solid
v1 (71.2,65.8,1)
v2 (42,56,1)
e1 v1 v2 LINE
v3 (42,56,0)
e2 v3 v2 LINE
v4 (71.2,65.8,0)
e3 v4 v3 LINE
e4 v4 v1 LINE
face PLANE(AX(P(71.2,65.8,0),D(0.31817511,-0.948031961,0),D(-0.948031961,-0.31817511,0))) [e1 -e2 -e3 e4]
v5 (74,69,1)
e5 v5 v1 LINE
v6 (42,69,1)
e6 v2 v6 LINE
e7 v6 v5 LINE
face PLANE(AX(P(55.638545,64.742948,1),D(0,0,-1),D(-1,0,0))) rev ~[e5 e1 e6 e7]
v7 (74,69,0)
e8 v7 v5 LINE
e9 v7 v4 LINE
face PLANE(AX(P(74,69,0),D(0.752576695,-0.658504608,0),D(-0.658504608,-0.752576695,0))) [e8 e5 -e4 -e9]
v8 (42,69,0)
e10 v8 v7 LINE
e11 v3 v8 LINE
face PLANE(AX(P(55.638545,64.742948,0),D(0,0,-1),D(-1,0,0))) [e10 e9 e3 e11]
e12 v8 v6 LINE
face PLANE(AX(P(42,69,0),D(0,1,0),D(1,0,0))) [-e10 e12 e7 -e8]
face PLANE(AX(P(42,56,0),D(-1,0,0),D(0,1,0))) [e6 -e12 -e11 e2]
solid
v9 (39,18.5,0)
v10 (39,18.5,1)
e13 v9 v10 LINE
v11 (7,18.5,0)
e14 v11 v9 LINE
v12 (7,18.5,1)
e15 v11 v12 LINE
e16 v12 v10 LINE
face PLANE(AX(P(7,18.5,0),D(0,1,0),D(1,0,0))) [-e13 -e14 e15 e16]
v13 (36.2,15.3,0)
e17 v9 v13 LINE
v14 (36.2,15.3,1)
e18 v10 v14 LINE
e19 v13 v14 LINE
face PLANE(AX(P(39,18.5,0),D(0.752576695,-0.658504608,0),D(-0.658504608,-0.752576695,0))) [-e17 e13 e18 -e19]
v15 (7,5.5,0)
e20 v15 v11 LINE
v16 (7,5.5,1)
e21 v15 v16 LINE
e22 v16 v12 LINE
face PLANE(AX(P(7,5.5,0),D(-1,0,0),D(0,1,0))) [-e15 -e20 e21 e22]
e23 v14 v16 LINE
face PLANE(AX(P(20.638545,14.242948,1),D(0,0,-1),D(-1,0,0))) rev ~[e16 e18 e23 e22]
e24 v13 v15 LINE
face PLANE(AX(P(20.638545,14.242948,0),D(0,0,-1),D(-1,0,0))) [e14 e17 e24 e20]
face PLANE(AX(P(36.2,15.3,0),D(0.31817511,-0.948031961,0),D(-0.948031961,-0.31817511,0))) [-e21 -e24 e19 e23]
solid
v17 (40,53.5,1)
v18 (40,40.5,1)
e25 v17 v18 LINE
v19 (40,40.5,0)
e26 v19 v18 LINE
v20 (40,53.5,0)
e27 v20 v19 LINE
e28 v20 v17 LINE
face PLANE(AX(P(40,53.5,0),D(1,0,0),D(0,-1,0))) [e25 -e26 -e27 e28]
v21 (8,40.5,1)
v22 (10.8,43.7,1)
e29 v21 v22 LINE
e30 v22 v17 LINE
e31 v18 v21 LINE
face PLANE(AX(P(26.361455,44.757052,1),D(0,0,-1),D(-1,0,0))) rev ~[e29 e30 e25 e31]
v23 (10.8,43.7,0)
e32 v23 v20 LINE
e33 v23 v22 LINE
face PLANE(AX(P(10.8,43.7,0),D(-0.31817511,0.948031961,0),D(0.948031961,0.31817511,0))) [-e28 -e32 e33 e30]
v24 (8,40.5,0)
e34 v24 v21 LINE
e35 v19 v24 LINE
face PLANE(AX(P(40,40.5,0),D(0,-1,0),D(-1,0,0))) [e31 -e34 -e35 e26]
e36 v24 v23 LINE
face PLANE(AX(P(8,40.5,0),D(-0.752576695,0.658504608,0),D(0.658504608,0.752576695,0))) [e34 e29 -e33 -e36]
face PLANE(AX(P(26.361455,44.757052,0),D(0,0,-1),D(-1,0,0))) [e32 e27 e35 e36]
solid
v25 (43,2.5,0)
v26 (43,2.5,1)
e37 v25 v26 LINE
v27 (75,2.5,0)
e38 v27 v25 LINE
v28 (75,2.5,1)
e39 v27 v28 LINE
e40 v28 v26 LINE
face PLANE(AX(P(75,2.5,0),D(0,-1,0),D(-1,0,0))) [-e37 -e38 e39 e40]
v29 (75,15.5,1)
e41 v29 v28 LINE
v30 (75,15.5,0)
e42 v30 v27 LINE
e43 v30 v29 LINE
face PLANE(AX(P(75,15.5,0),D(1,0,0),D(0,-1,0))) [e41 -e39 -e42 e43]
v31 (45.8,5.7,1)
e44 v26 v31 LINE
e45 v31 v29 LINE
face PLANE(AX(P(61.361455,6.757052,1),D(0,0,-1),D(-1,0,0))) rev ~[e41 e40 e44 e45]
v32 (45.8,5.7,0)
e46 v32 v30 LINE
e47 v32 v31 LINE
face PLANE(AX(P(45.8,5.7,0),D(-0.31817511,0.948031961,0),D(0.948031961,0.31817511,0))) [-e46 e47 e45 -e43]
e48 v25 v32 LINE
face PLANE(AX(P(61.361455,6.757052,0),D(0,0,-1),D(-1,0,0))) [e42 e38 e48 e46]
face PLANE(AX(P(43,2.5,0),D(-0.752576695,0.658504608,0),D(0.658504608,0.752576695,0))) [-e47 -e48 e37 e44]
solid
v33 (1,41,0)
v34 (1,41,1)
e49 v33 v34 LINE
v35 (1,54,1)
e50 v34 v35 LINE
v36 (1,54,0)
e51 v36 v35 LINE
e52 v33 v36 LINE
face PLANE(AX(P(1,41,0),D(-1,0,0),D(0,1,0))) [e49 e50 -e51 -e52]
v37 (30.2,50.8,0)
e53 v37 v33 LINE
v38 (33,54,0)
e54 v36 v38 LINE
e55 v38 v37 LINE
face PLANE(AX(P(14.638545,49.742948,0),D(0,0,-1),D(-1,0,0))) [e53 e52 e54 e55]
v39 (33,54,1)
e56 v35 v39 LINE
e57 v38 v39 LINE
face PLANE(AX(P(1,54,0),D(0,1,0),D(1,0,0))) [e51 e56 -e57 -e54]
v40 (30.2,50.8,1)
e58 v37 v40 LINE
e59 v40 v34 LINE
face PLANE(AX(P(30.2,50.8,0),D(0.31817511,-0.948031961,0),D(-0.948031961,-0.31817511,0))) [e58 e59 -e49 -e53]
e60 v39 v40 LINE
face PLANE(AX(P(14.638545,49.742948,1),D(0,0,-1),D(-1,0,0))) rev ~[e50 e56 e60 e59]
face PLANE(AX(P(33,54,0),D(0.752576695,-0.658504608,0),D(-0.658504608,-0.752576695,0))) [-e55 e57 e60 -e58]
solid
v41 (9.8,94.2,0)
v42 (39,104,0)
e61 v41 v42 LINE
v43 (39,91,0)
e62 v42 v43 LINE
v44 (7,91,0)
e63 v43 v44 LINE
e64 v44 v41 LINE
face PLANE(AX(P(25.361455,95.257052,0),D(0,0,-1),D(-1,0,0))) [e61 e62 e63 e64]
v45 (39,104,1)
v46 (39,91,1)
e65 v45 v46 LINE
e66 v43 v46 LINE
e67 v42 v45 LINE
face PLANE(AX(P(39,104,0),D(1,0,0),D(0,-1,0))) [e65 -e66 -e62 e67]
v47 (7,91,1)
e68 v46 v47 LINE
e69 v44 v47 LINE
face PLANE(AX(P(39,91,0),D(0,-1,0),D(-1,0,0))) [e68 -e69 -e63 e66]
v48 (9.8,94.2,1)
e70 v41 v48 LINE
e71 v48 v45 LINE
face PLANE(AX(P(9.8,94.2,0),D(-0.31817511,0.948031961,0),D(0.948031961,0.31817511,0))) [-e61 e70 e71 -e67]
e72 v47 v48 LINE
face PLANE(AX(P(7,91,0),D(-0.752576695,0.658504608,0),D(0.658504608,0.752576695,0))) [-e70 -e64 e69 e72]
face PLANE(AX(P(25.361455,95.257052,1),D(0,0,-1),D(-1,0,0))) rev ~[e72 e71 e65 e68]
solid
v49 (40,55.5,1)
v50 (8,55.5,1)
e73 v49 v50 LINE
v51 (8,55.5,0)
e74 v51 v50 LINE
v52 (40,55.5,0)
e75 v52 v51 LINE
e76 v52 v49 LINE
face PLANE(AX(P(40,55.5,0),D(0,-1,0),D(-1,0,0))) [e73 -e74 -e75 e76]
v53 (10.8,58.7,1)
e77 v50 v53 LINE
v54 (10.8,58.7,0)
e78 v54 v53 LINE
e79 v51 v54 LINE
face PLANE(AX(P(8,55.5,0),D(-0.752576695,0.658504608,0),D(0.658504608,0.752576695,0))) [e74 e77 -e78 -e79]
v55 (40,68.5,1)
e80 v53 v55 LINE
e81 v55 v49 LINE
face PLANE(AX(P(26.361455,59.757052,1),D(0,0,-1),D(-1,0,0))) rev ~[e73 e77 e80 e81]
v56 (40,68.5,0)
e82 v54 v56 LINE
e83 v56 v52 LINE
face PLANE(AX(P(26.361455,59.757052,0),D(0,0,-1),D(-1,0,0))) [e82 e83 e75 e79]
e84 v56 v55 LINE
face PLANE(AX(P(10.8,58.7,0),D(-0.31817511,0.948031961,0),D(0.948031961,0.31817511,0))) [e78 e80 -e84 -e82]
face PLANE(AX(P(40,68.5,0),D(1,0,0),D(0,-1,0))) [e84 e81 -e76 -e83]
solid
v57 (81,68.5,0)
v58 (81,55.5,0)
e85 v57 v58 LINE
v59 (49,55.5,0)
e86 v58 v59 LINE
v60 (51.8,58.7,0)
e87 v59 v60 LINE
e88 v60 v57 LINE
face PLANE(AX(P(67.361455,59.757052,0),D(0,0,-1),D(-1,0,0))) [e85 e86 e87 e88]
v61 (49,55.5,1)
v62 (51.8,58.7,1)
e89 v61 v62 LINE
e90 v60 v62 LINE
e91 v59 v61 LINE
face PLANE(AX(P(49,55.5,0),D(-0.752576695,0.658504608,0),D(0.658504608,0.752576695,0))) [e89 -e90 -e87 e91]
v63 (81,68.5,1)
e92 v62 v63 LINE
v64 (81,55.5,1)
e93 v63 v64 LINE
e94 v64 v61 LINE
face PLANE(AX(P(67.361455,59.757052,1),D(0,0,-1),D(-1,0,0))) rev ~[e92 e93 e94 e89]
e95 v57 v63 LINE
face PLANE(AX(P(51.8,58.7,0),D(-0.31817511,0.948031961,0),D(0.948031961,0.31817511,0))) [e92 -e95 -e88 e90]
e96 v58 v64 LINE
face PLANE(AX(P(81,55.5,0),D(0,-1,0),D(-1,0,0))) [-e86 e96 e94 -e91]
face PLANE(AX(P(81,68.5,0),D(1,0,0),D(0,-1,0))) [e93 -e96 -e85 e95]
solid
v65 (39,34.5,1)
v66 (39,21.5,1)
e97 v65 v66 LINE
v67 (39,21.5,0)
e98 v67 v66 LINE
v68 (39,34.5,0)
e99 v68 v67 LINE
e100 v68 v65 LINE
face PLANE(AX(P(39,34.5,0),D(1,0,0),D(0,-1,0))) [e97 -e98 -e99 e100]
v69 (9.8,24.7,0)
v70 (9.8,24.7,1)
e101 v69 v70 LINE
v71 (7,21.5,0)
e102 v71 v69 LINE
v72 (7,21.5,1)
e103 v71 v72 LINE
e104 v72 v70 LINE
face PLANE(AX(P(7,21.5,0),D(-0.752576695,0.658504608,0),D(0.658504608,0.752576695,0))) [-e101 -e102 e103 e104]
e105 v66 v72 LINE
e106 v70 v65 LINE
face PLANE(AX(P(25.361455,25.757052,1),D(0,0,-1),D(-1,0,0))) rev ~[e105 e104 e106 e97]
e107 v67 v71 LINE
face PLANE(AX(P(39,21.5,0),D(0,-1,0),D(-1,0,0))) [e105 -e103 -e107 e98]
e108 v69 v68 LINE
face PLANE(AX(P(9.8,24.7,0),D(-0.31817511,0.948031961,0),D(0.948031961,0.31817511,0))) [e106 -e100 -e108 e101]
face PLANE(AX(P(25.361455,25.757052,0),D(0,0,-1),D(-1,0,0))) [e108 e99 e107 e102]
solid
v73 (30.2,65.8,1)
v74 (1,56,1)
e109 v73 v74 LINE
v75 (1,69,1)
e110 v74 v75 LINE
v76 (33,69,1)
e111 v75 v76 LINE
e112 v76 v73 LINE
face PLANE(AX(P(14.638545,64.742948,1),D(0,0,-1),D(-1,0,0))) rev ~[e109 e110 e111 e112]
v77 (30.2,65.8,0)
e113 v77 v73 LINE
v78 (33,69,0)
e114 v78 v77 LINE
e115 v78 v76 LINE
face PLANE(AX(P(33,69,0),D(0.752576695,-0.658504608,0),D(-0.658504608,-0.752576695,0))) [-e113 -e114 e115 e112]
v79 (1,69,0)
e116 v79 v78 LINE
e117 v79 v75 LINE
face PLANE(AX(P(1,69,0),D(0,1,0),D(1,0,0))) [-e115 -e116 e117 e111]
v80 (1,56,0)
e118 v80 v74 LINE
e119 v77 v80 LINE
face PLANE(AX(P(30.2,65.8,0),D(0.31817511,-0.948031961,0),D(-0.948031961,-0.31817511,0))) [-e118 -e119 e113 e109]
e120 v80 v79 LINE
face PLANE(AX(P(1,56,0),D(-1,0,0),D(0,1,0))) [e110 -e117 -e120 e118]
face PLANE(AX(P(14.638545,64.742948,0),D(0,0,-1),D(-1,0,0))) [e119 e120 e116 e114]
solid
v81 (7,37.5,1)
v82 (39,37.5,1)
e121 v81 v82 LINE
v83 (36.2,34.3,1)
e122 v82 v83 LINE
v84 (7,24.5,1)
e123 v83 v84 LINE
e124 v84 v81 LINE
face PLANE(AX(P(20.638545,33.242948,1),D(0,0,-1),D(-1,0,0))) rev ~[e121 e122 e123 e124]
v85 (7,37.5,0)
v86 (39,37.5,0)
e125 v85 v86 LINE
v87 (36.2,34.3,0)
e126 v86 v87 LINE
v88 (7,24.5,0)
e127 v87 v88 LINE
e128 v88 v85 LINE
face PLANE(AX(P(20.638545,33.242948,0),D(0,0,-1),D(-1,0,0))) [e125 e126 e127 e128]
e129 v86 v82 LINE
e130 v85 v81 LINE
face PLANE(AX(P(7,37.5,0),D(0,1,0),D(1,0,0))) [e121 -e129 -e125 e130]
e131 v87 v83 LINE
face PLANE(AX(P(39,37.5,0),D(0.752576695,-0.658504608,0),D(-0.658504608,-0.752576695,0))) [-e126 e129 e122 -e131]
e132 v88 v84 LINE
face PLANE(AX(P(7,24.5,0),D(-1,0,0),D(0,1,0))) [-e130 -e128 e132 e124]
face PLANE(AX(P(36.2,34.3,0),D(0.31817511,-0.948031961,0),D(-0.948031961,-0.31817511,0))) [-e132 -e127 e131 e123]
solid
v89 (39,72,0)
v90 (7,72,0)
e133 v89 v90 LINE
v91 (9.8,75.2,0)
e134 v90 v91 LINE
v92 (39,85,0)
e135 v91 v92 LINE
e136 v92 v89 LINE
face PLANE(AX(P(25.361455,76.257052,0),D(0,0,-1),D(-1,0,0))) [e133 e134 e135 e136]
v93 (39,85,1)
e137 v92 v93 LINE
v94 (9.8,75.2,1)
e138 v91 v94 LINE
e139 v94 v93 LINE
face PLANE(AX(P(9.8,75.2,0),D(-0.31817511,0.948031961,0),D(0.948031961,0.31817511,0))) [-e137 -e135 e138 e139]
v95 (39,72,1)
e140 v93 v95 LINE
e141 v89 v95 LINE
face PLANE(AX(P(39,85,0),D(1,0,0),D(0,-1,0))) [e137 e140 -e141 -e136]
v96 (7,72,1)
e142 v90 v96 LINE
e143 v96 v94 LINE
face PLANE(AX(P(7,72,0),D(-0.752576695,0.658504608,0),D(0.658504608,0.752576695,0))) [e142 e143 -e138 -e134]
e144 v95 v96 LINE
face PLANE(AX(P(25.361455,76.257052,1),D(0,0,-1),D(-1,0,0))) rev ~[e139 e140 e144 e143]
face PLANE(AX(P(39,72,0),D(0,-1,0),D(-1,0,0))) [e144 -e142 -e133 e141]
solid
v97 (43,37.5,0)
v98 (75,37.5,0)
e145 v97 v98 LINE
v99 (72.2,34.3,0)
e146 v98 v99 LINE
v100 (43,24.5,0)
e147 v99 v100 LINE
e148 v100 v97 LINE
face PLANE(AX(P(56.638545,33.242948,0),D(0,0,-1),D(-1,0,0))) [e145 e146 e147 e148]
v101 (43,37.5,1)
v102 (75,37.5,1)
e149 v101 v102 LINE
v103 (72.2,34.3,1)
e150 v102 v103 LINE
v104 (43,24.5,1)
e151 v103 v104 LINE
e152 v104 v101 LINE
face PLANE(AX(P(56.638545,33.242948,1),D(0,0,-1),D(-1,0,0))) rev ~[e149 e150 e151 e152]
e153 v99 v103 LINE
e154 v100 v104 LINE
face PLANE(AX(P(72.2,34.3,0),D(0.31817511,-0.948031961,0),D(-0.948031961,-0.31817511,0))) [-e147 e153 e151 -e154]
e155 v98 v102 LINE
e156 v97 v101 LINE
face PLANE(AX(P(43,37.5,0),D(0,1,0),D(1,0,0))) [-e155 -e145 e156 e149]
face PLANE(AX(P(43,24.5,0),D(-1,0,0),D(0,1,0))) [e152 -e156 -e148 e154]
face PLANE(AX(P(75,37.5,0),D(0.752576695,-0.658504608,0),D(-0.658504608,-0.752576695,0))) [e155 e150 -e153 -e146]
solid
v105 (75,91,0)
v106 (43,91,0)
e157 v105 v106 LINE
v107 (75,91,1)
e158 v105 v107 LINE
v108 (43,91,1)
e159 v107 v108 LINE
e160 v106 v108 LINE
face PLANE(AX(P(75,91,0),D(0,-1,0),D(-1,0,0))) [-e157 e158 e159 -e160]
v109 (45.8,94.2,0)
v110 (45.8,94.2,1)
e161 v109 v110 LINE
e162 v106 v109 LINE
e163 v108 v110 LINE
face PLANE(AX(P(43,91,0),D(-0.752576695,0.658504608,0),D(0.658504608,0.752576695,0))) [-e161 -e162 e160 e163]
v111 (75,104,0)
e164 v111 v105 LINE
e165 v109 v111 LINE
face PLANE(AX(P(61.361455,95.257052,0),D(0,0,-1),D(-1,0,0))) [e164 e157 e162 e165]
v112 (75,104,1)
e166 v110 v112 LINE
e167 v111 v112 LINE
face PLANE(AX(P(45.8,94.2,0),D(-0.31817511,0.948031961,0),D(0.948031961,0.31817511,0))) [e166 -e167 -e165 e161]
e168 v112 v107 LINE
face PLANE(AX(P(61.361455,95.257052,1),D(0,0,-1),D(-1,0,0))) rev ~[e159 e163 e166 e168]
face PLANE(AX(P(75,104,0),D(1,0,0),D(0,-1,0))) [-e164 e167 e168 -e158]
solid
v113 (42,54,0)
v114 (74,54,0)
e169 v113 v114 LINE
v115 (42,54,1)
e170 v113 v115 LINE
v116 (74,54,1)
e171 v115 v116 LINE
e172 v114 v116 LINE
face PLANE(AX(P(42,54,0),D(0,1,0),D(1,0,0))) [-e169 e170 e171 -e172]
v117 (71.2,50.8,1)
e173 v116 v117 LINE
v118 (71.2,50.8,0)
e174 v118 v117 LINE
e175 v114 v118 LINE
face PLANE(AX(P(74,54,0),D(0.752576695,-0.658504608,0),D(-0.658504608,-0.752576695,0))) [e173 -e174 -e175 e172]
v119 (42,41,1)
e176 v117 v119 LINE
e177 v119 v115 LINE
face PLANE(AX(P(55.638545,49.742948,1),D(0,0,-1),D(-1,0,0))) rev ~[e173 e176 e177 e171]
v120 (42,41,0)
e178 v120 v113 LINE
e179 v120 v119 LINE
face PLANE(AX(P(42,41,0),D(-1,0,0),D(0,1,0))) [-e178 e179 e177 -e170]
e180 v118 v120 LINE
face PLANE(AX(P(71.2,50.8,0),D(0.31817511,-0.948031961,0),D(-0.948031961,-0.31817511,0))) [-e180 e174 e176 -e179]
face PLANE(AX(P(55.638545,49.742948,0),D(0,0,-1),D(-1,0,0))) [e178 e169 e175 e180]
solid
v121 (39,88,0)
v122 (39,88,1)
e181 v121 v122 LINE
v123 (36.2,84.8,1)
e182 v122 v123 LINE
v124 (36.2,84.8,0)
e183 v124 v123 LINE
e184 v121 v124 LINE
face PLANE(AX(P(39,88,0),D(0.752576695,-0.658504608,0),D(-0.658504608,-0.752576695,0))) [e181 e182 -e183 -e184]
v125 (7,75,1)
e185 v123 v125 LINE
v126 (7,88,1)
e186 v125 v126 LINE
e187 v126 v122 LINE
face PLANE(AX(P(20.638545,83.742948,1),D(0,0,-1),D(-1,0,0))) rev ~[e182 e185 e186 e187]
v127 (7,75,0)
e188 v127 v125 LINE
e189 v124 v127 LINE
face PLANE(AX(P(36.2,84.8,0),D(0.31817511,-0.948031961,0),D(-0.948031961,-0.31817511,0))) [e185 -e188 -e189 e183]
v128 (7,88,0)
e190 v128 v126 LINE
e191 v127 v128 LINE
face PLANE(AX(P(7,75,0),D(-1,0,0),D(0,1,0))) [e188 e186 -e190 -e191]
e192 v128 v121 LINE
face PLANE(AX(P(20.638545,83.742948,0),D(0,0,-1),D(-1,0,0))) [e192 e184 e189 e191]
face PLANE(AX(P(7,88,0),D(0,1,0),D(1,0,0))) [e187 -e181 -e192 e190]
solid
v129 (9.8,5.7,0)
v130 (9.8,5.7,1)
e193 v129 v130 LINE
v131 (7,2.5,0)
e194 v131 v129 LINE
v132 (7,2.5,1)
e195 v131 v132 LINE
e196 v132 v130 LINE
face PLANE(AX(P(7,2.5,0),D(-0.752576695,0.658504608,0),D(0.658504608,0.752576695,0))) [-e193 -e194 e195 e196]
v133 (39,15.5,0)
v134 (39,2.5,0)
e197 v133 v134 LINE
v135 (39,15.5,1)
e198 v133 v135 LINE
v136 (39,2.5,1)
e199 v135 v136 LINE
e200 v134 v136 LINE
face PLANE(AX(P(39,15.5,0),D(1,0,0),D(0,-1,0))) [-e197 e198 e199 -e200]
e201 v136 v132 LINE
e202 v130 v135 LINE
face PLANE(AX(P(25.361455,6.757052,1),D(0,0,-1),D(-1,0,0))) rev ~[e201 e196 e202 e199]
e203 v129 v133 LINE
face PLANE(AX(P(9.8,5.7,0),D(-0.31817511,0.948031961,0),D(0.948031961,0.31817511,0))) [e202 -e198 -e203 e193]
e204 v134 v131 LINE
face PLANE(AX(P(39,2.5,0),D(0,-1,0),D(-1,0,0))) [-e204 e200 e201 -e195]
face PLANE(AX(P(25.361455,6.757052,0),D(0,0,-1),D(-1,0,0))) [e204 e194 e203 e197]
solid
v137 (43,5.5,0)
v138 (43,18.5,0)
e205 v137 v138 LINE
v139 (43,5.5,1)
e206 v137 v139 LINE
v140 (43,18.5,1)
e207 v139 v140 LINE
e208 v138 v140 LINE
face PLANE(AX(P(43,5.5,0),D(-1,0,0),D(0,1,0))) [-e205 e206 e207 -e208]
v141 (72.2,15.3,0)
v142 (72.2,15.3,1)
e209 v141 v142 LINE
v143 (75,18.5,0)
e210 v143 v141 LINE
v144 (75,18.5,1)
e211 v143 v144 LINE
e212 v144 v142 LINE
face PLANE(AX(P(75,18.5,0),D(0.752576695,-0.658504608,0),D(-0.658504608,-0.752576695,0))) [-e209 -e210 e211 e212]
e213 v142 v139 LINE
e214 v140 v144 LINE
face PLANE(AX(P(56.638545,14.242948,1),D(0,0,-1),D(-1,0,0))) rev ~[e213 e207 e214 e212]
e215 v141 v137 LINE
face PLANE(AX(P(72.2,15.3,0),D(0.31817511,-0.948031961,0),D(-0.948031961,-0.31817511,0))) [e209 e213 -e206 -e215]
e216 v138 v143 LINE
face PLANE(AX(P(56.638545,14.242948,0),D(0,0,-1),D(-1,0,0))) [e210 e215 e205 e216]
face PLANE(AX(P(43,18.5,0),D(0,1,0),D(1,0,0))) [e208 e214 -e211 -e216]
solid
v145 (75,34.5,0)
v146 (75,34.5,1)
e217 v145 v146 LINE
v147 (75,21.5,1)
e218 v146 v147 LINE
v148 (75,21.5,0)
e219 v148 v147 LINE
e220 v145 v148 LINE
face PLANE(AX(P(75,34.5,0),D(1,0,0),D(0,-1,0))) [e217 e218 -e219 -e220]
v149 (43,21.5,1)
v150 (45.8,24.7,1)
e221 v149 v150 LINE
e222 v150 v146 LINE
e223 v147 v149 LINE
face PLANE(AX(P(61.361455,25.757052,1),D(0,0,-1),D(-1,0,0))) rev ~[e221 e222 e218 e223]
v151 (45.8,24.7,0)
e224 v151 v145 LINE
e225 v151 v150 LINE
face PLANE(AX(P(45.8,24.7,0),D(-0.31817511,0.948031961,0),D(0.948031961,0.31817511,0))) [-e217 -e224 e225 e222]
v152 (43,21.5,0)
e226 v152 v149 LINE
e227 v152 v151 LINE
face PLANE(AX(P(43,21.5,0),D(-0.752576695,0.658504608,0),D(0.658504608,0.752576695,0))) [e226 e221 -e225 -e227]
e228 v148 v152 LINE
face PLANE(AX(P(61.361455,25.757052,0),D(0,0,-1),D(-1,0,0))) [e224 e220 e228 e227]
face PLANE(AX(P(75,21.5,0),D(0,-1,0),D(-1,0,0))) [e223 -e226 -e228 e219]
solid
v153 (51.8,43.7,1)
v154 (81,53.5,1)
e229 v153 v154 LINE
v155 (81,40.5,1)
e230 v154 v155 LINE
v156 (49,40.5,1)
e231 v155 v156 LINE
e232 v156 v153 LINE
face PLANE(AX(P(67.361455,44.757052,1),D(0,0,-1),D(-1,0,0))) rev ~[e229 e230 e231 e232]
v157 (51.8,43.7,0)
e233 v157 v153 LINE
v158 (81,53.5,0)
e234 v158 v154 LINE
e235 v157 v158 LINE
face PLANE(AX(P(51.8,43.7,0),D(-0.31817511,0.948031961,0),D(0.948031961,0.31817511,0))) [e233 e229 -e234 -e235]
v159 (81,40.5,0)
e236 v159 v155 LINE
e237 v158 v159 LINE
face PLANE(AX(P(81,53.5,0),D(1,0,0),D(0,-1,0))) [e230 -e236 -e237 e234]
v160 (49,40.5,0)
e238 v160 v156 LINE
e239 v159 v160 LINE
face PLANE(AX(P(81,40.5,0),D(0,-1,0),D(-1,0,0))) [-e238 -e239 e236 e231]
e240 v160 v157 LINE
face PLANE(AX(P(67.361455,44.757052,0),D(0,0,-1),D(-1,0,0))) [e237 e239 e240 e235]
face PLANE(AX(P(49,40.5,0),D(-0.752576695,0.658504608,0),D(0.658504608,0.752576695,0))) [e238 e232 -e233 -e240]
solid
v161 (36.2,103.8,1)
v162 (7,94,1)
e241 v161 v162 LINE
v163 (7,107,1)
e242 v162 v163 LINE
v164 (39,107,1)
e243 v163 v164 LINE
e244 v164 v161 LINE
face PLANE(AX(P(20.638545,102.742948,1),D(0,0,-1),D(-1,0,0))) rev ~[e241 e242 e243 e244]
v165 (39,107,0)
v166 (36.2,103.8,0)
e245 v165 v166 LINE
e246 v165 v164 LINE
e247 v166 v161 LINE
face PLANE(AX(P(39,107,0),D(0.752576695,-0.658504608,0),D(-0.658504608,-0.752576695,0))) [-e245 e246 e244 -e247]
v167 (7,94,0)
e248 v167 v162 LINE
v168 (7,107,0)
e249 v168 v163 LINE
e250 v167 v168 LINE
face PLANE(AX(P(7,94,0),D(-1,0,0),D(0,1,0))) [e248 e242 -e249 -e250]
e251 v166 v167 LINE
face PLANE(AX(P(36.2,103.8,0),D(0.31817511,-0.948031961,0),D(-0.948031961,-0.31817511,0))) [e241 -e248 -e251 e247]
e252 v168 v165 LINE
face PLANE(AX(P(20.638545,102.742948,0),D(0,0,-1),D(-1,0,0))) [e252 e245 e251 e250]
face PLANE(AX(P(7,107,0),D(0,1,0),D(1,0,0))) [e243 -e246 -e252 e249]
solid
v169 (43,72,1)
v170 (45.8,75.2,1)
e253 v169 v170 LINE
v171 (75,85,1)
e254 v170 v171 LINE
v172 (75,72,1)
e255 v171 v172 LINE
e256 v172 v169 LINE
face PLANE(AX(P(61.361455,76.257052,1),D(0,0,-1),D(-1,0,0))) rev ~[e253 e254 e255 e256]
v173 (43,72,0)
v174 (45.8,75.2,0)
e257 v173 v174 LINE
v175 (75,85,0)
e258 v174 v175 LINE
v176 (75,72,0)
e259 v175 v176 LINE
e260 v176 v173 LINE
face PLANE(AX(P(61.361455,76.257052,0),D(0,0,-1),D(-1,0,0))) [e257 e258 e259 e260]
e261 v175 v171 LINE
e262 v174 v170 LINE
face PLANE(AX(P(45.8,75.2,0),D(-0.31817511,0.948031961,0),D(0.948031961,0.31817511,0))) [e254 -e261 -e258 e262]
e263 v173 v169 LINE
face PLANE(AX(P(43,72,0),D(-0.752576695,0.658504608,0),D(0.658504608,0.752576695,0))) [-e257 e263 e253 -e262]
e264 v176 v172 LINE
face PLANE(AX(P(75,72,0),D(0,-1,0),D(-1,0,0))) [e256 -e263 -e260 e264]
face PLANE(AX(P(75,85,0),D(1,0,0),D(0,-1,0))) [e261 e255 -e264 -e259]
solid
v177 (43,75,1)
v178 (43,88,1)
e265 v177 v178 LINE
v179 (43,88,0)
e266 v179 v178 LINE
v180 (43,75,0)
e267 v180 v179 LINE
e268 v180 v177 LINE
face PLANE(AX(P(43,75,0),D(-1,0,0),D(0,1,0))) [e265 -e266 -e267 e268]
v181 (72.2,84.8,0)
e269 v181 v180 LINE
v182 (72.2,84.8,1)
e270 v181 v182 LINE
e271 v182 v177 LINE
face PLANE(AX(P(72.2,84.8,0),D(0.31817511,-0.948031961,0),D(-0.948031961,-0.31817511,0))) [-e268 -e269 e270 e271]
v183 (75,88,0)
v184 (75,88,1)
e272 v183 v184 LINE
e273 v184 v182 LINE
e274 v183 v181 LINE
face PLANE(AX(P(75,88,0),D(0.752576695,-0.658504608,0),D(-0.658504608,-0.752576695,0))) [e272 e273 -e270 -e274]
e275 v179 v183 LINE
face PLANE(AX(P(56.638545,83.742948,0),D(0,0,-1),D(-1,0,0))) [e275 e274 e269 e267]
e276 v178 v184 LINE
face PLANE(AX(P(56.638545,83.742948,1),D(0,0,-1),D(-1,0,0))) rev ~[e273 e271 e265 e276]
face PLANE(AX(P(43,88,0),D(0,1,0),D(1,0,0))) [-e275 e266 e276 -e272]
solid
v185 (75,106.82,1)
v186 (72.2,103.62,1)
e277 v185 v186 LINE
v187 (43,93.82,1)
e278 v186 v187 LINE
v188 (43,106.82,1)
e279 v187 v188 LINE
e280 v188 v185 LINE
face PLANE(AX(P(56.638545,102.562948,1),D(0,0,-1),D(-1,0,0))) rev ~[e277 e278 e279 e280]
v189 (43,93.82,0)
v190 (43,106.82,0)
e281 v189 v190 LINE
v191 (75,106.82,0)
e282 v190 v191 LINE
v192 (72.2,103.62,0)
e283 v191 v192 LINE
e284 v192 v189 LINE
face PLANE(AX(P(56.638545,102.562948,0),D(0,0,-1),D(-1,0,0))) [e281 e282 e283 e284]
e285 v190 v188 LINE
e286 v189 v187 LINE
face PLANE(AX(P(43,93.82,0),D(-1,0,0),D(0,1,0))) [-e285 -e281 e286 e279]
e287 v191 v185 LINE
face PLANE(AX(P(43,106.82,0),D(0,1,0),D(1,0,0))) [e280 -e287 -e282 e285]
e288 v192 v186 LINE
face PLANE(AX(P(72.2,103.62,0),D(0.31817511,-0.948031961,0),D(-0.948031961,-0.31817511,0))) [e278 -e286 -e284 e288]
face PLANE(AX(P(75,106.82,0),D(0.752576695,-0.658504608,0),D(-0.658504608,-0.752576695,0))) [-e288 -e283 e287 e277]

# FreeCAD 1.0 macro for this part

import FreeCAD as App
import Part
import Sketcher


def add_polygon(sketch, points):
    """Adds a closed chain of lines whose ends are joined by coincident constraints."""
    first, n = sketch.GeometryCount, len(points)
    for a, b in zip(points, points[1:] + points[:1]):
        sketch.addGeometry(Part.LineSegment(App.Vector(*a, 0), App.Vector(*b, 0)), False)
    for i in range(n):
        sketch.addConstraint(Sketcher.Constraint("Coincident", first + i, 2, first + (i + 1) % n, 1))

doc = App.newDocument("Part")
params = doc.addObject("Spreadsheet::Sheet", "Params")
for row, (alias, value) in enumerate([
    ("sketch1_width", "32 mm"),
    ("sketch1_height", "13 mm"),
    ("pad1_length", "1 mm"),
    ("sketch2_width", "32 mm"),
    ("sketch2_height", "13 mm"),
    ("pad2_length", "1 mm"),
    ("sketch3_width", "32 mm"),
    ("sketch3_height", "13 mm"),
    ("pad3_length", "1 mm"),
    ("sketch4_width", "32 mm"),
    ("sketch4_height", "13 mm"),
    ("pad4_length", "1 mm"),
    ("sketch5_width", "32 mm"),
    ("sketch5_height", "13 mm"),
    ("pad5_length", "1 mm"),
    ("sketch6_width", "32 mm"),
    ("sketch6_height", "13 mm"),
    ("pad6_length", "1 mm"),
    ("sketch7_width", "32 mm"),
    ("sketch7_height", "13 mm"),
    ("pad7_length", "1 mm"),
    ("sketch8_width", "32 mm"),
    ("sketch8_height", "13 mm"),
    ("pad8_length", "1 mm"),
    ("sketch9_width", "32 mm"),
    ("sketch9_height", "13 mm"),
    ("pad9_length", "1 mm"),
    ("sketch10_width", "32 mm"),
    ("sketch10_height", "13 mm"),
    ("pad10_length", "1 mm"),
    ("sketch11_width", "32 mm"),
    ("sketch11_height", "13 mm"),
    ("pad11_length", "1 mm"),
    ("sketch12_width", "32 mm"),
    ("sketch12_height", "13 mm"),
    ("pad12_length", "1 mm"),
    ("sketch13_width", "32 mm"),
    ("sketch13_height", "13 mm"),
    ("pad13_length", "1 mm"),
    ("sketch14_width", "32 mm"),
    ("sketch14_height", "13 mm"),
    ("pad14_length", "1 mm"),
    ("sketch15_width", "32 mm"),
    ("sketch15_height", "13 mm"),
    ("pad15_length", "1 mm"),
    ("sketch16_width", "32 mm"),
    ("sketch16_height", "13 mm"),
    ("pad16_length", "1 mm"),
    ("sketch17_width", "32 mm"),
    ("sketch17_height", "13 mm"),
    ("pad17_length", "1 mm"),
    ("sketch18_width", "32 mm"),
    ("sketch18_height", "13 mm"),
    ("pad18_length", "1 mm"),
    ("sketch19_width", "32 mm"),
    ("sketch19_height", "13 mm"),
    ("pad19_length", "1 mm"),
    ("sketch20_width", "32 mm"),
    ("sketch20_height", "13 mm"),
    ("pad20_length", "1 mm"),
    ("sketch21_width", "32 mm"),
    ("sketch21_height", "13 mm"),
    ("pad21_length", "1 mm"),
    ("sketch22_width", "32 mm"),
    ("sketch22_height", "13 mm"),
    ("pad22_length", "1 mm"),
    ("sketch23_width", "32 mm"),
    ("sketch23_height", "13 mm"),
    ("pad23_length", "1 mm"),
    ("sketch24_width", "32 mm"),
    ("sketch24_height", "13 mm"),
    ("pad24_length", "1 mm"),
], start=1):
    params.set(f"A{row}", alias)
    params.set(f"B{row}", "=" + value)
    params.setAlias(f"B{row}", alias)

body = doc.addObject("PartDesign::Body", "Body")

# Sketch on XY plane
sketch1 = body.newObject("Sketcher::SketchObject", "Sketch")
sketch1.AttachmentSupport = (doc.getObject("XY_Plane"), [""])
sketch1.MapMode = "FlatFace"
add_polygon(sketch1, [(7, 2.5), (39, 2.5), (39, 15.5), (9.8, 5.7)])  # lines 0-3
sketch1.addConstraint([
    Sketcher.Constraint("Horizontal", 0),
    Sketcher.Constraint("Vertical", 1),
    Sketcher.Constraint("DistanceX", 0, 1, 0, 2, 32.0),
    Sketcher.Constraint("DistanceY", 1, 1, 1, 2, 13.0),
    Sketcher.Constraint("DistanceX", -1, 1, 0, 2, 39.0),
    Sketcher.Constraint("DistanceY", -1, 1, 0, 2, 2.5),
    Sketcher.Constraint("DistanceX", -1, 1, 2, 2, 9.8),
    Sketcher.Constraint("DistanceY", -1, 1, 2, 2, 5.7),
])
sketch1.setExpression("Constraints[6]", "Params.sketch1_width")
sketch1.setExpression("Constraints[7]", "Params.sketch1_height")
pad1 = body.newObject("PartDesign::Pad", "Pad")
pad1.Profile = sketch1
pad1.setExpression("Length", "Params.pad1_length")
body2 = doc.addObject("PartDesign::Body", "Body001")

# Sketch on XY plane
sketch2 = body2.newObject("Sketcher::SketchObject", "Sketch001")
sketch2.AttachmentSupport = (doc.getObject("XY_Plane001"), [""])
sketch2.MapMode = "FlatFace"
add_polygon(sketch2, [(39, 18.5), (7, 18.5), (7, 5.5), (36.2, 15.3)])  # lines 0-3
sketch2.addConstraint([
    Sketcher.Constraint("Horizontal", 0),
    Sketcher.Constraint("Vertical", 1),
    Sketcher.Constraint("DistanceX", 0, 2, 0, 1, 32.0),
    Sketcher.Constraint("DistanceY", 1, 2, 1, 1, 13.0),
    Sketcher.Constraint("DistanceX", -1, 1, 0, 2, 7.0),
    Sketcher.Constraint("DistanceY", -1, 1, 0, 2, 18.5),
    Sketcher.Constraint("DistanceX", -1, 1, 2, 2, 36.2),
    Sketcher.Constraint("DistanceY", -1, 1, 2, 2, 15.3),
])
sketch2.setExpression("Constraints[6]", "Params.sketch2_width")
sketch2.setExpression("Constraints[7]", "Params.sketch2_height")
pad2 = body2.newObject("PartDesign::Pad", "Pad001")
pad2.Profile = sketch2
pad2.setExpression("Length", "Params.pad2_length")
body3 = doc.addObject("PartDesign::Body", "Body002")

# Sketch on XY plane
sketch3 = body3.newObject("Sketcher::SketchObject", "Sketch002")
sketch3.AttachmentSupport = (doc.getObject("XY_Plane002"), [""])
sketch3.MapMode = "FlatFace"
add_polygon(sketch3, [(75, 18.5), (43, 18.5), (43, 5.5), (72.2, 15.3)])  # lines 0-3
sketch3.addConstraint([
    Sketcher.Constraint("Horizontal", 0),
    Sketcher.Constraint("Vertical", 1),
    Sketcher.Constraint("DistanceX", 0, 2, 0, 1, 32.0),
    Sketcher.Constraint("DistanceY", 1, 2, 1, 1, 13.0),
    Sketcher.Constraint("DistanceX", -1, 1, 0, 2, 43.0),
    Sketcher.Constraint("DistanceY", -1, 1, 0, 2, 18.5),
    Sketcher.Constraint("DistanceX", -1, 1, 2, 2, 72.2),
    Sketcher.Constraint("DistanceY", -1, 1, 2, 2, 15.3),
])
sketch3.setExpression("Constraints[6]", "Params.sketch3_width")
sketch3.setExpression("Constraints[7]", "Params.sketch3_height")
pad3 = body3.newObject("PartDesign::Pad", "Pad002")
pad3.Profile = sketch3
pad3.setExpression("Length", "Params.pad3_length")
body4 = doc.addObject("PartDesign::Body", "Body003")

# Sketch on XY plane
sketch4 = body4.newObject("Sketcher::SketchObject", "Sketch003")
sketch4.AttachmentSupport = (doc.getObject("XY_Plane003"), [""])
sketch4.MapMode = "FlatFace"
add_polygon(sketch4, [(43, 2.5), (75, 2.5), (75, 15.5), (45.8, 5.7)])  # lines 0-3
sketch4.addConstraint([
    Sketcher.Constraint("Horizontal", 0),
    Sketcher.Constraint("Vertical", 1),
    Sketcher.Constraint("DistanceX", 0, 1, 0, 2, 32.0),
    Sketcher.Constraint("DistanceY", 1, 1, 1, 2, 13.0),
    Sketcher.Constraint("DistanceX", -1, 1, 0, 2, 75.0),
    Sketcher.Constraint("DistanceY", -1, 1, 0, 2, 2.5),
    Sketcher.Constraint("DistanceX", -1, 1, 2, 2, 45.8),
    Sketcher.Constraint("DistanceY", -1, 1, 2, 2, 5.7),
])
sketch4.setExpression("Constraints[6]", "Params.sketch4_width")
sketch4.setExpression("Constraints[7]", "Params.sketch4_height")
pad4 = body4.newObject("PartDesign::Pad", "Pad003")
pad4.Profile = sketch4
pad4.setExpression("Length", "Params.pad4_length")
body5 = doc.addObject("PartDesign::Body", "Body004")

# Sketch on XY plane
sketch5 = body5.newObject("Sketcher::SketchObject", "Sketch004")
sketch5.AttachmentSupport = (doc.getObject("XY_Plane004"), [""])
sketch5.MapMode = "FlatFace"
add_polygon(sketch5, [(7, 21.5), (39, 21.5), (39, 34.5), (9.8, 24.7)])  # lines 0-3
sketch5.addConstraint([
    Sketcher.Constraint("Horizontal", 0),
    Sketcher.Constraint("Vertical", 1),
    Sketcher.Constraint("DistanceX", 0, 1, 0, 2, 32.0),
    Sketcher.Constraint("DistanceY", 1, 1, 1, 2, 13.0),
    Sketcher.Constraint("DistanceX", -1, 1, 0, 2, 39.0),
    Sketcher.Constraint("DistanceY", -1, 1, 0, 2, 21.5),
    Sketcher.Constraint("DistanceX", -1, 1, 2, 2, 9.8),
    Sketcher.Constraint("DistanceY", -1, 1, 2, 2, 24.7),
])
sketch5.setExpression("Constraints[6]", "Params.sketch5_width")
sketch5.setExpression("Constraints[7]", "Params.sketch5_height")
pad5 = body5.newObject("PartDesign::Pad", "Pad004")
pad5.Profile = sketch5
pad5.setExpression("Length", "Params.pad5_length")
body6 = doc.addObject("PartDesign::Body", "Body005")

# Sketch on XY plane
sketch6 = body6.newObject("Sketcher::SketchObject", "Sketch005")
sketch6.AttachmentSupport = (doc.getObject("XY_Plane005"), [""])
sketch6.MapMode = "FlatFace"
add_polygon(sketch6, [(39, 37.5), (7, 37.5), (7, 24.5), (36.2, 34.3)])  # lines 0-3
sketch6.addConstraint([
    Sketcher.Constraint("Horizontal", 0),
    Sketcher.Constraint("Vertical", 1),
    Sketcher.Constraint("DistanceX", 0, 2, 0, 1, 32.0),
    Sketcher.Constraint("DistanceY", 1, 2, 1, 1, 13.0),
    Sketcher.Constraint("DistanceX", -1, 1, 0, 2, 7.0),
    Sketcher.Constraint("DistanceY", -1, 1, 0, 2, 37.5),
    Sketcher.Constraint("DistanceX", -1, 1, 2, 2, 36.2),
    Sketcher.Constraint("DistanceY", -1, 1, 2, 2, 34.3),
])
sketch6.setExpression("Constraints[6]", "Params.sketch6_width")
sketch6.setExpression("Constraints[7]", "Params.sketch6_height")
pad6 = body6.newObject("PartDesign::Pad", "Pad005")
pad6.Profile = sketch6
pad6.setExpression("Length", "Params.pad6_length")
body7 = doc.addObject("PartDesign::Body", "Body006")

# Sketch on XY plane
sketch7 = body7.newObject("Sketcher::SketchObject", "Sketch006")
sketch7.AttachmentSupport = (doc.getObject("XY_Plane006"), [""])
sketch7.MapMode = "FlatFace"
add_polygon(sketch7, [(75, 37.5), (43, 37.5), (43, 24.5), (72.2, 34.3)])  # lines 0-3
sketch7.addConstraint([
    Sketcher.Constraint("Horizontal", 0),
    Sketcher.Constraint("Vertical", 1),
    Sketcher.Constraint("DistanceX", 0, 2, 0, 1, 32.0),
    Sketcher.Constraint("DistanceY", 1, 2, 1, 1, 13.0),
    Sketcher.Constraint("DistanceX", -1, 1, 0, 2, 43.0),
    Sketcher.Constraint("DistanceY", -1, 1, 0, 2, 37.5),
    Sketcher.Constraint("DistanceX", -1, 1, 2, 2, 72.2),
    Sketcher.Constraint("DistanceY", -1, 1, 2, 2, 34.3),
])
sketch7.setExpression("Constraints[6]", "Params.sketch7_width")
sketch7.setExpression("Constraints[7]", "Params.sketch7_height")
pad7 = body7.newObject("PartDesign::Pad", "Pad006")
pad7.Profile = sketch7
pad7.setExpression("Length", "Params.pad7_length")
body8 = doc.addObject("PartDesign::Body", "Body007")

# Sketch on XY plane
sketch8 = body8.newObject("Sketcher::SketchObject", "Sketch007")
sketch8.AttachmentSupport = (doc.getObject("XY_Plane007"), [""])
sketch8.MapMode = "FlatFace"
add_polygon(sketch8, [(43, 21.5), (75, 21.5), (75, 34.5), (45.8, 24.7)])  # lines 0-3
sketch8.addConstraint([
    Sketcher.Constraint("Horizontal", 0),
    Sketcher.Constraint("Vertical", 1),
    Sketcher.Constraint("DistanceX", 0, 1, 0, 2, 32.0),
    Sketcher.Constraint("DistanceY", 1, 1, 1, 2, 13.0),
    Sketcher.Constraint("DistanceX", -1, 1, 0, 2, 75.0),
    Sketcher.Constraint("DistanceY", -1, 1, 0, 2, 21.5),
    Sketcher.Constraint("DistanceX", -1, 1, 2, 2, 45.8),
    Sketcher.Constraint("DistanceY", -1, 1, 2, 2, 24.7),
])
sketch8.setExpression("Constraints[6]", "Params.sketch8_width")
sketch8.setExpression("Constraints[7]", "Params.sketch8_height")
pad8 = body8.newObject("PartDesign::Pad", "Pad007")
pad8.Profile = sketch8
pad8.setExpression("Length", "Params.pad8_length")
body9 = doc.addObject("PartDesign::Body", "Body008")

# Sketch on XY plane
sketch9 = body9.newObject("Sketcher::SketchObject", "Sketch008")
sketch9.AttachmentSupport = (doc.getObject("XY_Plane008"), [""])
sketch9.MapMode = "FlatFace"
add_polygon(sketch9, [(8, 40.5), (40, 40.5), (40, 53.5), (10.8, 43.7)])  # lines 0-3
sketch9.addConstraint([
    Sketcher.Constraint("Horizontal", 0),
    Sketcher.Constraint("Vertical", 1),
    Sketcher.Constraint("DistanceX", 0, 1, 0, 2, 32.0),
    Sketcher.Constraint("DistanceY", 1, 1, 1, 2, 13.0),
    Sketcher.Constraint("DistanceX", -1, 1, 0, 2, 40.0),
    Sketcher.Constraint("DistanceY", -1, 1, 0, 2, 40.5),
    Sketcher.Constraint("DistanceX", -1, 1, 2, 2, 10.8),
    Sketcher.Constraint("DistanceY", -1, 1, 2, 2, 43.7),
])
sketch9.setExpression("Constraints[6]", "Params.sketch9_width")
sketch9.setExpression("Constraints[7]", "Params.sketch9_height")
pad9 = body9.newObject("PartDesign::Pad", "Pad008")
pad9.Profile = sketch9
pad9.setExpression("Length", "Params.pad9_length")
body10 = doc.addObject("PartDesign::Body", "Body009")

# Sketch on XY plane
sketch10 = body10.newObject("Sketcher::SketchObject", "Sketch009")
sketch10.AttachmentSupport = (doc.getObject("XY_Plane009"), [""])
sketch10.MapMode = "FlatFace"
add_polygon(sketch10, [(33, 54), (1, 54), (1, 41), (30.2, 50.8)])  # lines 0-3
sketch10.addConstraint([
    Sketcher.Constraint("Horizontal", 0),
    Sketcher.Constraint("Vertical", 1),
    Sketcher.Constraint("DistanceX", 0, 2, 0, 1, 32.0),
    Sketcher.Constraint("DistanceY", 1, 2, 1, 1, 13.0),
    Sketcher.Constraint("DistanceX", -1, 1, 0, 2, 1.0),
    Sketcher.Constraint("DistanceY", -1, 1, 0, 2, 54.0),
    Sketcher.Constraint("DistanceX", -1, 1, 2, 2, 30.2),
    Sketcher.Constraint("DistanceY", -1, 1, 2, 2, 50.8),
])
sketch10.setExpression("Constraints[6]", "Params.sketch10_width")
sketch10.setExpression("Constraints[7]", "Params.sketch10_height")
pad10 = body10.newObject("PartDesign::Pad", "Pad009")
pad10.Profile = sketch10
pad10.setExpression("Length", "Params.pad10_length")
body11 = doc.addObject("PartDesign::Body", "Body010")

# Sketch on XY plane
sketch11 = body11.newObject("Sketcher::SketchObject", "Sketch010")
sketch11.AttachmentSupport = (doc.getObject("XY_Plane010"), [""])
sketch11.MapMode = "FlatFace"
add_polygon(sketch11, [(74, 54), (42, 54), (42, 41), (71.2, 50.8)])  # lines 0-3
sketch11.addConstraint([
    Sketcher.Constraint("Horizontal", 0),
    Sketcher.Constraint("Vertical", 1),
    Sketcher.Constraint("DistanceX", 0, 2, 0, 1, 32.0),
    Sketcher.Constraint("DistanceY", 1, 2, 1, 1, 13.0),
    Sketcher.Constraint("DistanceX", -1, 1, 0, 2, 42.0),
    Sketcher.Constraint("DistanceY", -1, 1, 0, 2, 54.0),
    Sketcher.Constraint("DistanceX", -1, 1, 2, 2, 71.2),
    Sketcher.Constraint("DistanceY", -1, 1, 2, 2, 50.8),
])
sketch11.setExpression("Constraints[6]", "Params.sketch11_width")
sketch11.setExpression("Constraints[7]", "Params.sketch11_height")
pad11 = body11.newObject("PartDesign::Pad", "Pad010")
pad11.Profile = sketch11
pad11.setExpression("Length", "Params.pad11_length")
body12 = doc.addObject("PartDesign::Body", "Body011")

# Sketch on XY plane
sketch12 = body12.newObject("Sketcher::SketchObject", "Sketch011")
sketch12.AttachmentSupport = (doc.getObject("XY_Plane011"), [""])
sketch12.MapMode = "FlatFace"
add_polygon(sketch12, [(49, 40.5), (81, 40.5), (81, 53.5), (51.8, 43.7)])  # lines 0-3
sketch12.addConstraint([
    Sketcher.Constraint("Horizontal", 0),
    Sketcher.Constraint("Vertical", 1),
    Sketcher.Constraint("DistanceX", 0, 1, 0, 2, 32.0),
    Sketcher.Constraint("DistanceY", 1, 1, 1, 2, 13.0),
    Sketcher.Constraint("DistanceX", -1, 1, 0, 2, 81.0),
    Sketcher.Constraint("DistanceY", -1, 1, 0, 2, 40.5),
    Sketcher.Constraint("DistanceX", -1, 1, 2, 2, 51.8),
    Sketcher.Constraint("DistanceY", -1, 1, 2, 2, 43.7),
])
sketch12.setExpression("Constraints[6]", "Params.sketch12_width")
sketch12.setExpression("Constraints[7]", "Params.sketch12_height")
pad12 = body12.newObject("PartDesign::Pad", "Pad011")
pad12.Profile = sketch12
pad12.setExpression("Length", "Params.pad12_length")
body13 = doc.addObject("PartDesign::Body", "Body012")

# Sketch on XY plane
sketch13 = body13.newObject("Sketcher::SketchObject", "Sketch012")
sketch13.AttachmentSupport = (doc.getObject("XY_Plane012"), [""])
sketch13.MapMode = "FlatFace"
add_polygon(sketch13, [(8, 55.5), (40, 55.5), (40, 68.5), (10.8, 58.7)])  # lines 0-3
sketch13.addConstraint([
    Sketcher.Constraint("Horizontal", 0),
    Sketcher.Constraint("Vertical", 1),
    Sketcher.Constraint("DistanceX", 0, 1, 0, 2, 32.0),
    Sketcher.Constraint("DistanceY", 1, 1, 1, 2, 13.0),
    Sketcher.Constraint("DistanceX", -1, 1, 0, 2, 40.0),
    Sketcher.Constraint("DistanceY", -1, 1, 0, 2, 55.5),
    Sketcher.Constraint("DistanceX", -1, 1, 2, 2, 10.8),
    Sketcher.Constraint("DistanceY", -1, 1, 2, 2, 58.7),
])
sketch13.setExpression("Constraints[6]", "Params.sketch13_width")
sketch13.setExpression("Constraints[7]", "Params.sketch13_height")
pad13 = body13.newObject("PartDesign::Pad", "Pad012")
pad13.Profile = sketch13
pad13.setExpression("Length", "Params.pad13_length")
body14 = doc.addObject("PartDesign::Body", "Body013")

# Sketch on XY plane
sketch14 = body14.newObject("Sketcher::SketchObject", "Sketch013")
sketch14.AttachmentSupport = (doc.getObject("XY_Plane013"), [""])
sketch14.MapMode = "FlatFace"
add_polygon(sketch14, [(33, 69), (1, 69), (1, 56), (30.2, 65.8)])  # lines 0-3
sketch14.addConstraint([
    Sketcher.Constraint("Horizontal", 0),
    Sketcher.Constraint("Vertical", 1),
    Sketcher.Constraint("DistanceX", 0, 2, 0, 1, 32.0),
    Sketcher.Constraint("DistanceY", 1, 2, 1, 1, 13.0),
    Sketcher.Constraint("DistanceX", -1, 1, 0, 2, 1.0),
    Sketcher.Constraint("DistanceY", -1, 1, 0, 2, 69.0),
    Sketcher.Constraint("DistanceX", -1, 1, 2, 2, 30.2),
    Sketcher.Constraint("DistanceY", -1, 1, 2, 2, 65.8),
])
sketch14.setExpression("Constraints[6]", "Params.sketch14_width")
sketch14.setExpression("Constraints[7]", "Params.sketch14_height")
pad14 = body14.newObject("PartDesign::Pad", "Pad013")
pad14.Profile = sketch14
pad14.setExpression("Length", "Params.pad14_length")
body15 = doc.addObject("PartDesign::Body", "Body014")

# Sketch on XY plane
sketch15 = body15.newObject("Sketcher::SketchObject", "Sketch014")
sketch15.AttachmentSupport = (doc.getObject("XY_Plane014"), [""])
sketch15.MapMode = "FlatFace"
add_polygon(sketch15, [(74, 69), (42, 69), (42, 56), (71.2, 65.8)])  # lines 0-3
sketch15.addConstraint([
    Sketcher.Constraint("Horizontal", 0),
    Sketcher.Constraint("Vertical", 1),
    Sketcher.Constraint("DistanceX", 0, 2, 0, 1, 32.0),
    Sketcher.Constraint("DistanceY", 1, 2, 1, 1, 13.0),
    Sketcher.Constraint("DistanceX", -1, 1, 0, 2, 42.0),
    Sketcher.Constraint("DistanceY", -1, 1, 0, 2, 69.0),
    Sketcher.Constraint("DistanceX", -1, 1, 2, 2, 71.2),
    Sketcher.Constraint("DistanceY", -1, 1, 2, 2, 65.8),
])
sketch15.setExpression("Constraints[6]", "Params.sketch15_width")
sketch15.setExpression("Constraints[7]", "Params.sketch15_height")
pad15 = body15.newObject("PartDesign::Pad", "Pad014")
pad15.Profile = sketch15
pad15.setExpression("Length", "Params.pad15_length")
body16 = doc.addObject("PartDesign::Body", "Body015")

# Sketch on XY plane
sketch16 = body16.newObject("Sketcher::SketchObject", "Sketch015")
sketch16.AttachmentSupport = (doc.getObject("XY_Plane015"), [""])
sketch16.MapMode = "FlatFace"
add_polygon(sketch16, [(49, 55.5), (81, 55.5), (81, 68.5), (51.8, 58.7)])  # lines 0-3
sketch16.addConstraint([
    Sketcher.Constraint("Horizontal", 0),
    Sketcher.Constraint("Vertical", 1),
    Sketcher.Constraint("DistanceX", 0, 1, 0, 2, 32.0),
    Sketcher.Constraint("DistanceY", 1, 1, 1, 2, 13.0),
    Sketcher.Constraint("DistanceX", -1, 1, 0, 2, 81.0),
    Sketcher.Constraint("DistanceY", -1, 1, 0, 2, 55.5),
    Sketcher.Constraint("DistanceX", -1, 1, 2, 2, 51.8),
    Sketcher.Constraint("DistanceY", -1, 1, 2, 2, 58.7),
])
sketch16.setExpression("Constraints[6]", "Params.sketch16_width")
sketch16.setExpression("Constraints[7]", "Params.sketch16_height")
pad16 = body16.newObject("PartDesign::Pad", "Pad015")
pad16.Profile = sketch16
pad16.setExpression("Length", "Params.pad16_length")
body17 = doc.addObject("PartDesign::Body", "Body016")

# Sketch on XY plane
sketch17 = body17.newObject("Sketcher::SketchObject", "Sketch016")
sketch17.AttachmentSupport = (doc.getObject("XY_Plane016"), [""])
sketch17.MapMode = "FlatFace"
add_polygon(sketch17, [(7, 72), (39, 72), (39, 85), (9.8, 75.2)])  # lines 0-3
sketch17.addConstraint([
    Sketcher.Constraint("Horizontal", 0),
    Sketcher.Constraint("Vertical", 1),
    Sketcher.Constraint("DistanceX", 0, 1, 0, 2, 32.0),
    Sketcher.Constraint("DistanceY", 1, 1, 1, 2, 13.0),
    Sketcher.Constraint("DistanceX", -1, 1, 0, 2, 39.0),
    Sketcher.Constraint("DistanceY", -1, 1, 0, 2, 72.0),
    Sketcher.Constraint("DistanceX", -1, 1, 2, 2, 9.8),
    Sketcher.Constraint("DistanceY", -1, 1, 2, 2, 75.2),
])
sketch17.setExpression("Constraints[6]", "Params.sketch17_width")
sketch17.setExpression("Constraints[7]", "Params.sketch17_height")
pad17 = body17.newObject("PartDesign::Pad", "Pad016")
pad17.Profile = sketch17
pad17.setExpression("Length", "Params.pad17_length")
body18 = doc.addObject("PartDesign::Body", "Body017")

# Sketch on XY plane
sketch18 = body18.newObject("Sketcher::SketchObject", "Sketch017")
sketch18.AttachmentSupport = (doc.getObject("XY_Plane017"), [""])
sketch18.MapMode = "FlatFace"
add_polygon(sketch18, [(39, 88), (7, 88), (7, 75), (36.2, 84.8)])  # lines 0-3
sketch18.addConstraint([
    Sketcher.Constraint("Horizontal", 0),
    Sketcher.Constraint("Vertical", 1),
    Sketcher.Constraint("DistanceX", 0, 2, 0, 1, 32.0),
    Sketcher.Constraint("DistanceY", 1, 2, 1, 1, 13.0),
    Sketcher.Constraint("DistanceX", -1, 1, 0, 2, 7.0),
    Sketcher.Constraint("DistanceY", -1, 1, 0, 2, 88.0),
    Sketcher.Constraint("DistanceX", -1, 1, 2, 2, 36.2),
    Sketcher.Constraint("DistanceY", -1, 1, 2, 2, 84.8),
])
sketch18.setExpression("Constraints[6]", "Params.sketch18_width")
sketch18.setExpression("Constraints[7]", "Params.sketch18_height")
pad18 = body18.newObject("PartDesign::Pad", "Pad017")
pad18.Profile = sketch18
pad18.setExpression("Length", "Params.pad18_length")
body19 = doc.addObject("PartDesign::Body", "Body018")

# Sketch on XY plane
sketch19 = body19.newObject("Sketcher::SketchObject", "Sketch018")
sketch19.AttachmentSupport = (doc.getObject("XY_Plane018"), [""])
sketch19.MapMode = "FlatFace"
add_polygon(sketch19, [(75, 88), (43, 88), (43, 75), (72.2, 84.8)])  # lines 0-3
sketch19.addConstraint([
    Sketcher.Constraint("Horizontal", 0),
    Sketcher.Constraint("Vertical", 1),
    Sketcher.Constraint("DistanceX", 0, 2, 0, 1, 32.0),
    Sketcher.Constraint("DistanceY", 1, 2, 1, 1, 13.0),
    Sketcher.Constraint("DistanceX", -1, 1, 0, 2, 43.0),
    Sketcher.Constraint("DistanceY", -1, 1, 0, 2, 88.0),
    Sketcher.Constraint("DistanceX", -1, 1, 2, 2, 72.2),
    Sketcher.Constraint("DistanceY", -1, 1, 2, 2, 84.8),
])
sketch19.setExpression("Constraints[6]", "Params.sketch19_width")
sketch19.setExpression("Constraints[7]", "Params.sketch19_height")
pad19 = body19.newObject("PartDesign::Pad", "Pad018")
pad19.Profile = sketch19
pad19.setExpression("Length", "Params.pad19_length")
body20 = doc.addObject("PartDesign::Body", "Body019")

# Sketch on XY plane
sketch20 = body20.newObject("Sketcher::SketchObject", "Sketch019")
sketch20.AttachmentSupport = (doc.getObject("XY_Plane019"), [""])
sketch20.MapMode = "FlatFace"
add_polygon(sketch20, [(43, 72), (75, 72), (75, 85), (45.8, 75.2)])  # lines 0-3
sketch20.addConstraint([
    Sketcher.Constraint("Horizontal", 0),
    Sketcher.Constraint("Vertical", 1),
    Sketcher.Constraint("DistanceX", 0, 1, 0, 2, 32.0),
    Sketcher.Constraint("DistanceY", 1, 1, 1, 2, 13.0),
    Sketcher.Constraint("DistanceX", -1, 1, 0, 2, 75.0),
    Sketcher.Constraint("DistanceY", -1, 1, 0, 2, 72.0),
    Sketcher.Constraint("DistanceX", -1, 1, 2, 2, 45.8),
    Sketcher.Constraint("DistanceY", -1, 1, 2, 2, 75.2),
])
sketch20.setExpression("Constraints[6]", "Params.sketch20_width")
sketch20.setExpression("Constraints[7]", "Params.sketch20_height")
pad20 = body20.newObject("PartDesign::Pad", "Pad019")
pad20.Profile = sketch20
pad20.setExpression("Length", "Params.pad20_length")
body21 = doc.addObject("PartDesign::Body", "Body020")

# Sketch on XY plane
sketch21 = body21.newObject("Sketcher::SketchObject", "Sketch020")
sketch21.AttachmentSupport = (doc.getObject("XY_Plane020"), [""])
sketch21.MapMode = "FlatFace"
add_polygon(sketch21, [(7, 91), (39, 91), (39, 104), (9.8, 94.2)])  # lines 0-3
sketch21.addConstraint([
    Sketcher.Constraint("Horizontal", 0),
    Sketcher.Constraint("Vertical", 1),
    Sketcher.Constraint("DistanceX", 0, 1, 0, 2, 32.0),
    Sketcher.Constraint("DistanceY", 1, 1, 1, 2, 13.0),
    Sketcher.Constraint("DistanceX", -1, 1, 0, 2, 39.0),
    Sketcher.Constraint("DistanceY", -1, 1, 0, 2, 91.0),
    Sketcher.Constraint("DistanceX", -1, 1, 2, 2, 9.8),
    Sketcher.Constraint("DistanceY", -1, 1, 2, 2, 94.2),
])
sketch21.setExpression("Constraints[6]", "Params.sketch21_width")
sketch21.setExpression("Constraints[7]", "Params.sketch21_height")
pad21 = body21.newObject("PartDesign::Pad", "Pad020")
pad21.Profile = sketch21
pad21.setExpression("Length", "Params.pad21_length")
body22 = doc.addObject("PartDesign::Body", "Body021")

# Sketch on XY plane
sketch22 = body22.newObject("Sketcher::SketchObject", "Sketch021")
sketch22.AttachmentSupport = (doc.getObject("XY_Plane021"), [""])
sketch22.MapMode = "FlatFace"
add_polygon(sketch22, [(39, 107), (7, 107), (7, 94), (36.2, 103.8)])  # lines 0-3
sketch22.addConstraint([
    Sketcher.Constraint("Horizontal", 0),
    Sketcher.Constraint("Vertical", 1),
    Sketcher.Constraint("DistanceX", 0, 2, 0, 1, 32.0),
    Sketcher.Constraint("DistanceY", 1, 2, 1, 1, 13.0),
    Sketcher.Constraint("DistanceX", -1, 1, 0, 2, 7.0),
    Sketcher.Constraint("DistanceY", -1, 1, 0, 2, 107.0),
    Sketcher.Constraint("DistanceX", -1, 1, 2, 2, 36.2),
    Sketcher.Constraint("DistanceY", -1, 1, 2, 2, 103.8),
])
sketch22.setExpression("Constraints[6]", "Params.sketch22_width")
sketch22.setExpression("Constraints[7]", "Params.sketch22_height")
pad22 = body22.newObject("PartDesign::Pad", "Pad021")
pad22.Profile = sketch22
pad22.setExpression("Length", "Params.pad22_length")
body23 = doc.addObject("PartDesign::Body", "Body022")

# Sketch on XY plane
sketch23 = body23.newObject("Sketcher::SketchObject", "Sketch022")
sketch23.AttachmentSupport = (doc.getObject("XY_Plane022"), [""])
sketch23.MapMode = "FlatFace"
add_polygon(sketch23, [(75, 106.82), (43, 106.82), (43, 93.82), (72.2, 103.62)])  # lines 0-3
sketch23.addConstraint([
    Sketcher.Constraint("Horizontal", 0),
    Sketcher.Constraint("Vertical", 1),
    Sketcher.Constraint("DistanceX", 0, 2, 0, 1, 32.0),
    Sketcher.Constraint("DistanceY", 1, 2, 1, 1, 13.0),
    Sketcher.Constraint("DistanceX", -1, 1, 0, 2, 43.0),
    Sketcher.Constraint("DistanceX", -1, 1, 2, 2, 72.2),
    Sketcher.Constraint("DistanceY", 2, 2, 0, 2, 3.2),
    Sketcher.Constraint("DistanceY", -1, 1, 0, 2, 106.82),
])
sketch23.setExpression("Constraints[6]", "Params.sketch23_width")
sketch23.setExpression("Constraints[7]", "Params.sketch23_height")
pad23 = body23.newObject("PartDesign::Pad", "Pad022")
pad23.Profile = sketch23
pad23.setExpression("Length", "Params.pad23_length")
body24 = doc.addObject("PartDesign::Body", "Body023")

# Sketch on XY plane
sketch24 = body24.newObject("Sketcher::SketchObject", "Sketch023")
sketch24.AttachmentSupport = (doc.getObject("XY_Plane023"), [""])
sketch24.MapMode = "FlatFace"
add_polygon(sketch24, [(43, 91), (75, 91), (75, 104), (45.8, 94.2)])  # lines 0-3
sketch24.addConstraint([
    Sketcher.Constraint("Horizontal", 0),
    Sketcher.Constraint("Vertical", 1),
    Sketcher.Constraint("DistanceX", 0, 1, 0, 2, 32.0),
    Sketcher.Constraint("DistanceY", 1, 1, 1, 2, 13.0),
    Sketcher.Constraint("DistanceX", -1, 1, 0, 2, 75.0),
    Sketcher.Constraint("DistanceY", -1, 1, 0, 2, 91.0),
    Sketcher.Constraint("DistanceX", -1, 1, 2, 2, 45.8),
    Sketcher.Constraint("DistanceY", -1, 1, 2, 2, 94.2),
])
sketch24.setExpression("Constraints[6]", "Params.sketch24_width")
sketch24.setExpression("Constraints[7]", "Params.sketch24_height")
pad24 = body24.newObject("PartDesign::Pad", "Pad023")
pad24.Profile = sketch24
pad24.setExpression("Length", "Params.pad24_length")

doc.recompute()
